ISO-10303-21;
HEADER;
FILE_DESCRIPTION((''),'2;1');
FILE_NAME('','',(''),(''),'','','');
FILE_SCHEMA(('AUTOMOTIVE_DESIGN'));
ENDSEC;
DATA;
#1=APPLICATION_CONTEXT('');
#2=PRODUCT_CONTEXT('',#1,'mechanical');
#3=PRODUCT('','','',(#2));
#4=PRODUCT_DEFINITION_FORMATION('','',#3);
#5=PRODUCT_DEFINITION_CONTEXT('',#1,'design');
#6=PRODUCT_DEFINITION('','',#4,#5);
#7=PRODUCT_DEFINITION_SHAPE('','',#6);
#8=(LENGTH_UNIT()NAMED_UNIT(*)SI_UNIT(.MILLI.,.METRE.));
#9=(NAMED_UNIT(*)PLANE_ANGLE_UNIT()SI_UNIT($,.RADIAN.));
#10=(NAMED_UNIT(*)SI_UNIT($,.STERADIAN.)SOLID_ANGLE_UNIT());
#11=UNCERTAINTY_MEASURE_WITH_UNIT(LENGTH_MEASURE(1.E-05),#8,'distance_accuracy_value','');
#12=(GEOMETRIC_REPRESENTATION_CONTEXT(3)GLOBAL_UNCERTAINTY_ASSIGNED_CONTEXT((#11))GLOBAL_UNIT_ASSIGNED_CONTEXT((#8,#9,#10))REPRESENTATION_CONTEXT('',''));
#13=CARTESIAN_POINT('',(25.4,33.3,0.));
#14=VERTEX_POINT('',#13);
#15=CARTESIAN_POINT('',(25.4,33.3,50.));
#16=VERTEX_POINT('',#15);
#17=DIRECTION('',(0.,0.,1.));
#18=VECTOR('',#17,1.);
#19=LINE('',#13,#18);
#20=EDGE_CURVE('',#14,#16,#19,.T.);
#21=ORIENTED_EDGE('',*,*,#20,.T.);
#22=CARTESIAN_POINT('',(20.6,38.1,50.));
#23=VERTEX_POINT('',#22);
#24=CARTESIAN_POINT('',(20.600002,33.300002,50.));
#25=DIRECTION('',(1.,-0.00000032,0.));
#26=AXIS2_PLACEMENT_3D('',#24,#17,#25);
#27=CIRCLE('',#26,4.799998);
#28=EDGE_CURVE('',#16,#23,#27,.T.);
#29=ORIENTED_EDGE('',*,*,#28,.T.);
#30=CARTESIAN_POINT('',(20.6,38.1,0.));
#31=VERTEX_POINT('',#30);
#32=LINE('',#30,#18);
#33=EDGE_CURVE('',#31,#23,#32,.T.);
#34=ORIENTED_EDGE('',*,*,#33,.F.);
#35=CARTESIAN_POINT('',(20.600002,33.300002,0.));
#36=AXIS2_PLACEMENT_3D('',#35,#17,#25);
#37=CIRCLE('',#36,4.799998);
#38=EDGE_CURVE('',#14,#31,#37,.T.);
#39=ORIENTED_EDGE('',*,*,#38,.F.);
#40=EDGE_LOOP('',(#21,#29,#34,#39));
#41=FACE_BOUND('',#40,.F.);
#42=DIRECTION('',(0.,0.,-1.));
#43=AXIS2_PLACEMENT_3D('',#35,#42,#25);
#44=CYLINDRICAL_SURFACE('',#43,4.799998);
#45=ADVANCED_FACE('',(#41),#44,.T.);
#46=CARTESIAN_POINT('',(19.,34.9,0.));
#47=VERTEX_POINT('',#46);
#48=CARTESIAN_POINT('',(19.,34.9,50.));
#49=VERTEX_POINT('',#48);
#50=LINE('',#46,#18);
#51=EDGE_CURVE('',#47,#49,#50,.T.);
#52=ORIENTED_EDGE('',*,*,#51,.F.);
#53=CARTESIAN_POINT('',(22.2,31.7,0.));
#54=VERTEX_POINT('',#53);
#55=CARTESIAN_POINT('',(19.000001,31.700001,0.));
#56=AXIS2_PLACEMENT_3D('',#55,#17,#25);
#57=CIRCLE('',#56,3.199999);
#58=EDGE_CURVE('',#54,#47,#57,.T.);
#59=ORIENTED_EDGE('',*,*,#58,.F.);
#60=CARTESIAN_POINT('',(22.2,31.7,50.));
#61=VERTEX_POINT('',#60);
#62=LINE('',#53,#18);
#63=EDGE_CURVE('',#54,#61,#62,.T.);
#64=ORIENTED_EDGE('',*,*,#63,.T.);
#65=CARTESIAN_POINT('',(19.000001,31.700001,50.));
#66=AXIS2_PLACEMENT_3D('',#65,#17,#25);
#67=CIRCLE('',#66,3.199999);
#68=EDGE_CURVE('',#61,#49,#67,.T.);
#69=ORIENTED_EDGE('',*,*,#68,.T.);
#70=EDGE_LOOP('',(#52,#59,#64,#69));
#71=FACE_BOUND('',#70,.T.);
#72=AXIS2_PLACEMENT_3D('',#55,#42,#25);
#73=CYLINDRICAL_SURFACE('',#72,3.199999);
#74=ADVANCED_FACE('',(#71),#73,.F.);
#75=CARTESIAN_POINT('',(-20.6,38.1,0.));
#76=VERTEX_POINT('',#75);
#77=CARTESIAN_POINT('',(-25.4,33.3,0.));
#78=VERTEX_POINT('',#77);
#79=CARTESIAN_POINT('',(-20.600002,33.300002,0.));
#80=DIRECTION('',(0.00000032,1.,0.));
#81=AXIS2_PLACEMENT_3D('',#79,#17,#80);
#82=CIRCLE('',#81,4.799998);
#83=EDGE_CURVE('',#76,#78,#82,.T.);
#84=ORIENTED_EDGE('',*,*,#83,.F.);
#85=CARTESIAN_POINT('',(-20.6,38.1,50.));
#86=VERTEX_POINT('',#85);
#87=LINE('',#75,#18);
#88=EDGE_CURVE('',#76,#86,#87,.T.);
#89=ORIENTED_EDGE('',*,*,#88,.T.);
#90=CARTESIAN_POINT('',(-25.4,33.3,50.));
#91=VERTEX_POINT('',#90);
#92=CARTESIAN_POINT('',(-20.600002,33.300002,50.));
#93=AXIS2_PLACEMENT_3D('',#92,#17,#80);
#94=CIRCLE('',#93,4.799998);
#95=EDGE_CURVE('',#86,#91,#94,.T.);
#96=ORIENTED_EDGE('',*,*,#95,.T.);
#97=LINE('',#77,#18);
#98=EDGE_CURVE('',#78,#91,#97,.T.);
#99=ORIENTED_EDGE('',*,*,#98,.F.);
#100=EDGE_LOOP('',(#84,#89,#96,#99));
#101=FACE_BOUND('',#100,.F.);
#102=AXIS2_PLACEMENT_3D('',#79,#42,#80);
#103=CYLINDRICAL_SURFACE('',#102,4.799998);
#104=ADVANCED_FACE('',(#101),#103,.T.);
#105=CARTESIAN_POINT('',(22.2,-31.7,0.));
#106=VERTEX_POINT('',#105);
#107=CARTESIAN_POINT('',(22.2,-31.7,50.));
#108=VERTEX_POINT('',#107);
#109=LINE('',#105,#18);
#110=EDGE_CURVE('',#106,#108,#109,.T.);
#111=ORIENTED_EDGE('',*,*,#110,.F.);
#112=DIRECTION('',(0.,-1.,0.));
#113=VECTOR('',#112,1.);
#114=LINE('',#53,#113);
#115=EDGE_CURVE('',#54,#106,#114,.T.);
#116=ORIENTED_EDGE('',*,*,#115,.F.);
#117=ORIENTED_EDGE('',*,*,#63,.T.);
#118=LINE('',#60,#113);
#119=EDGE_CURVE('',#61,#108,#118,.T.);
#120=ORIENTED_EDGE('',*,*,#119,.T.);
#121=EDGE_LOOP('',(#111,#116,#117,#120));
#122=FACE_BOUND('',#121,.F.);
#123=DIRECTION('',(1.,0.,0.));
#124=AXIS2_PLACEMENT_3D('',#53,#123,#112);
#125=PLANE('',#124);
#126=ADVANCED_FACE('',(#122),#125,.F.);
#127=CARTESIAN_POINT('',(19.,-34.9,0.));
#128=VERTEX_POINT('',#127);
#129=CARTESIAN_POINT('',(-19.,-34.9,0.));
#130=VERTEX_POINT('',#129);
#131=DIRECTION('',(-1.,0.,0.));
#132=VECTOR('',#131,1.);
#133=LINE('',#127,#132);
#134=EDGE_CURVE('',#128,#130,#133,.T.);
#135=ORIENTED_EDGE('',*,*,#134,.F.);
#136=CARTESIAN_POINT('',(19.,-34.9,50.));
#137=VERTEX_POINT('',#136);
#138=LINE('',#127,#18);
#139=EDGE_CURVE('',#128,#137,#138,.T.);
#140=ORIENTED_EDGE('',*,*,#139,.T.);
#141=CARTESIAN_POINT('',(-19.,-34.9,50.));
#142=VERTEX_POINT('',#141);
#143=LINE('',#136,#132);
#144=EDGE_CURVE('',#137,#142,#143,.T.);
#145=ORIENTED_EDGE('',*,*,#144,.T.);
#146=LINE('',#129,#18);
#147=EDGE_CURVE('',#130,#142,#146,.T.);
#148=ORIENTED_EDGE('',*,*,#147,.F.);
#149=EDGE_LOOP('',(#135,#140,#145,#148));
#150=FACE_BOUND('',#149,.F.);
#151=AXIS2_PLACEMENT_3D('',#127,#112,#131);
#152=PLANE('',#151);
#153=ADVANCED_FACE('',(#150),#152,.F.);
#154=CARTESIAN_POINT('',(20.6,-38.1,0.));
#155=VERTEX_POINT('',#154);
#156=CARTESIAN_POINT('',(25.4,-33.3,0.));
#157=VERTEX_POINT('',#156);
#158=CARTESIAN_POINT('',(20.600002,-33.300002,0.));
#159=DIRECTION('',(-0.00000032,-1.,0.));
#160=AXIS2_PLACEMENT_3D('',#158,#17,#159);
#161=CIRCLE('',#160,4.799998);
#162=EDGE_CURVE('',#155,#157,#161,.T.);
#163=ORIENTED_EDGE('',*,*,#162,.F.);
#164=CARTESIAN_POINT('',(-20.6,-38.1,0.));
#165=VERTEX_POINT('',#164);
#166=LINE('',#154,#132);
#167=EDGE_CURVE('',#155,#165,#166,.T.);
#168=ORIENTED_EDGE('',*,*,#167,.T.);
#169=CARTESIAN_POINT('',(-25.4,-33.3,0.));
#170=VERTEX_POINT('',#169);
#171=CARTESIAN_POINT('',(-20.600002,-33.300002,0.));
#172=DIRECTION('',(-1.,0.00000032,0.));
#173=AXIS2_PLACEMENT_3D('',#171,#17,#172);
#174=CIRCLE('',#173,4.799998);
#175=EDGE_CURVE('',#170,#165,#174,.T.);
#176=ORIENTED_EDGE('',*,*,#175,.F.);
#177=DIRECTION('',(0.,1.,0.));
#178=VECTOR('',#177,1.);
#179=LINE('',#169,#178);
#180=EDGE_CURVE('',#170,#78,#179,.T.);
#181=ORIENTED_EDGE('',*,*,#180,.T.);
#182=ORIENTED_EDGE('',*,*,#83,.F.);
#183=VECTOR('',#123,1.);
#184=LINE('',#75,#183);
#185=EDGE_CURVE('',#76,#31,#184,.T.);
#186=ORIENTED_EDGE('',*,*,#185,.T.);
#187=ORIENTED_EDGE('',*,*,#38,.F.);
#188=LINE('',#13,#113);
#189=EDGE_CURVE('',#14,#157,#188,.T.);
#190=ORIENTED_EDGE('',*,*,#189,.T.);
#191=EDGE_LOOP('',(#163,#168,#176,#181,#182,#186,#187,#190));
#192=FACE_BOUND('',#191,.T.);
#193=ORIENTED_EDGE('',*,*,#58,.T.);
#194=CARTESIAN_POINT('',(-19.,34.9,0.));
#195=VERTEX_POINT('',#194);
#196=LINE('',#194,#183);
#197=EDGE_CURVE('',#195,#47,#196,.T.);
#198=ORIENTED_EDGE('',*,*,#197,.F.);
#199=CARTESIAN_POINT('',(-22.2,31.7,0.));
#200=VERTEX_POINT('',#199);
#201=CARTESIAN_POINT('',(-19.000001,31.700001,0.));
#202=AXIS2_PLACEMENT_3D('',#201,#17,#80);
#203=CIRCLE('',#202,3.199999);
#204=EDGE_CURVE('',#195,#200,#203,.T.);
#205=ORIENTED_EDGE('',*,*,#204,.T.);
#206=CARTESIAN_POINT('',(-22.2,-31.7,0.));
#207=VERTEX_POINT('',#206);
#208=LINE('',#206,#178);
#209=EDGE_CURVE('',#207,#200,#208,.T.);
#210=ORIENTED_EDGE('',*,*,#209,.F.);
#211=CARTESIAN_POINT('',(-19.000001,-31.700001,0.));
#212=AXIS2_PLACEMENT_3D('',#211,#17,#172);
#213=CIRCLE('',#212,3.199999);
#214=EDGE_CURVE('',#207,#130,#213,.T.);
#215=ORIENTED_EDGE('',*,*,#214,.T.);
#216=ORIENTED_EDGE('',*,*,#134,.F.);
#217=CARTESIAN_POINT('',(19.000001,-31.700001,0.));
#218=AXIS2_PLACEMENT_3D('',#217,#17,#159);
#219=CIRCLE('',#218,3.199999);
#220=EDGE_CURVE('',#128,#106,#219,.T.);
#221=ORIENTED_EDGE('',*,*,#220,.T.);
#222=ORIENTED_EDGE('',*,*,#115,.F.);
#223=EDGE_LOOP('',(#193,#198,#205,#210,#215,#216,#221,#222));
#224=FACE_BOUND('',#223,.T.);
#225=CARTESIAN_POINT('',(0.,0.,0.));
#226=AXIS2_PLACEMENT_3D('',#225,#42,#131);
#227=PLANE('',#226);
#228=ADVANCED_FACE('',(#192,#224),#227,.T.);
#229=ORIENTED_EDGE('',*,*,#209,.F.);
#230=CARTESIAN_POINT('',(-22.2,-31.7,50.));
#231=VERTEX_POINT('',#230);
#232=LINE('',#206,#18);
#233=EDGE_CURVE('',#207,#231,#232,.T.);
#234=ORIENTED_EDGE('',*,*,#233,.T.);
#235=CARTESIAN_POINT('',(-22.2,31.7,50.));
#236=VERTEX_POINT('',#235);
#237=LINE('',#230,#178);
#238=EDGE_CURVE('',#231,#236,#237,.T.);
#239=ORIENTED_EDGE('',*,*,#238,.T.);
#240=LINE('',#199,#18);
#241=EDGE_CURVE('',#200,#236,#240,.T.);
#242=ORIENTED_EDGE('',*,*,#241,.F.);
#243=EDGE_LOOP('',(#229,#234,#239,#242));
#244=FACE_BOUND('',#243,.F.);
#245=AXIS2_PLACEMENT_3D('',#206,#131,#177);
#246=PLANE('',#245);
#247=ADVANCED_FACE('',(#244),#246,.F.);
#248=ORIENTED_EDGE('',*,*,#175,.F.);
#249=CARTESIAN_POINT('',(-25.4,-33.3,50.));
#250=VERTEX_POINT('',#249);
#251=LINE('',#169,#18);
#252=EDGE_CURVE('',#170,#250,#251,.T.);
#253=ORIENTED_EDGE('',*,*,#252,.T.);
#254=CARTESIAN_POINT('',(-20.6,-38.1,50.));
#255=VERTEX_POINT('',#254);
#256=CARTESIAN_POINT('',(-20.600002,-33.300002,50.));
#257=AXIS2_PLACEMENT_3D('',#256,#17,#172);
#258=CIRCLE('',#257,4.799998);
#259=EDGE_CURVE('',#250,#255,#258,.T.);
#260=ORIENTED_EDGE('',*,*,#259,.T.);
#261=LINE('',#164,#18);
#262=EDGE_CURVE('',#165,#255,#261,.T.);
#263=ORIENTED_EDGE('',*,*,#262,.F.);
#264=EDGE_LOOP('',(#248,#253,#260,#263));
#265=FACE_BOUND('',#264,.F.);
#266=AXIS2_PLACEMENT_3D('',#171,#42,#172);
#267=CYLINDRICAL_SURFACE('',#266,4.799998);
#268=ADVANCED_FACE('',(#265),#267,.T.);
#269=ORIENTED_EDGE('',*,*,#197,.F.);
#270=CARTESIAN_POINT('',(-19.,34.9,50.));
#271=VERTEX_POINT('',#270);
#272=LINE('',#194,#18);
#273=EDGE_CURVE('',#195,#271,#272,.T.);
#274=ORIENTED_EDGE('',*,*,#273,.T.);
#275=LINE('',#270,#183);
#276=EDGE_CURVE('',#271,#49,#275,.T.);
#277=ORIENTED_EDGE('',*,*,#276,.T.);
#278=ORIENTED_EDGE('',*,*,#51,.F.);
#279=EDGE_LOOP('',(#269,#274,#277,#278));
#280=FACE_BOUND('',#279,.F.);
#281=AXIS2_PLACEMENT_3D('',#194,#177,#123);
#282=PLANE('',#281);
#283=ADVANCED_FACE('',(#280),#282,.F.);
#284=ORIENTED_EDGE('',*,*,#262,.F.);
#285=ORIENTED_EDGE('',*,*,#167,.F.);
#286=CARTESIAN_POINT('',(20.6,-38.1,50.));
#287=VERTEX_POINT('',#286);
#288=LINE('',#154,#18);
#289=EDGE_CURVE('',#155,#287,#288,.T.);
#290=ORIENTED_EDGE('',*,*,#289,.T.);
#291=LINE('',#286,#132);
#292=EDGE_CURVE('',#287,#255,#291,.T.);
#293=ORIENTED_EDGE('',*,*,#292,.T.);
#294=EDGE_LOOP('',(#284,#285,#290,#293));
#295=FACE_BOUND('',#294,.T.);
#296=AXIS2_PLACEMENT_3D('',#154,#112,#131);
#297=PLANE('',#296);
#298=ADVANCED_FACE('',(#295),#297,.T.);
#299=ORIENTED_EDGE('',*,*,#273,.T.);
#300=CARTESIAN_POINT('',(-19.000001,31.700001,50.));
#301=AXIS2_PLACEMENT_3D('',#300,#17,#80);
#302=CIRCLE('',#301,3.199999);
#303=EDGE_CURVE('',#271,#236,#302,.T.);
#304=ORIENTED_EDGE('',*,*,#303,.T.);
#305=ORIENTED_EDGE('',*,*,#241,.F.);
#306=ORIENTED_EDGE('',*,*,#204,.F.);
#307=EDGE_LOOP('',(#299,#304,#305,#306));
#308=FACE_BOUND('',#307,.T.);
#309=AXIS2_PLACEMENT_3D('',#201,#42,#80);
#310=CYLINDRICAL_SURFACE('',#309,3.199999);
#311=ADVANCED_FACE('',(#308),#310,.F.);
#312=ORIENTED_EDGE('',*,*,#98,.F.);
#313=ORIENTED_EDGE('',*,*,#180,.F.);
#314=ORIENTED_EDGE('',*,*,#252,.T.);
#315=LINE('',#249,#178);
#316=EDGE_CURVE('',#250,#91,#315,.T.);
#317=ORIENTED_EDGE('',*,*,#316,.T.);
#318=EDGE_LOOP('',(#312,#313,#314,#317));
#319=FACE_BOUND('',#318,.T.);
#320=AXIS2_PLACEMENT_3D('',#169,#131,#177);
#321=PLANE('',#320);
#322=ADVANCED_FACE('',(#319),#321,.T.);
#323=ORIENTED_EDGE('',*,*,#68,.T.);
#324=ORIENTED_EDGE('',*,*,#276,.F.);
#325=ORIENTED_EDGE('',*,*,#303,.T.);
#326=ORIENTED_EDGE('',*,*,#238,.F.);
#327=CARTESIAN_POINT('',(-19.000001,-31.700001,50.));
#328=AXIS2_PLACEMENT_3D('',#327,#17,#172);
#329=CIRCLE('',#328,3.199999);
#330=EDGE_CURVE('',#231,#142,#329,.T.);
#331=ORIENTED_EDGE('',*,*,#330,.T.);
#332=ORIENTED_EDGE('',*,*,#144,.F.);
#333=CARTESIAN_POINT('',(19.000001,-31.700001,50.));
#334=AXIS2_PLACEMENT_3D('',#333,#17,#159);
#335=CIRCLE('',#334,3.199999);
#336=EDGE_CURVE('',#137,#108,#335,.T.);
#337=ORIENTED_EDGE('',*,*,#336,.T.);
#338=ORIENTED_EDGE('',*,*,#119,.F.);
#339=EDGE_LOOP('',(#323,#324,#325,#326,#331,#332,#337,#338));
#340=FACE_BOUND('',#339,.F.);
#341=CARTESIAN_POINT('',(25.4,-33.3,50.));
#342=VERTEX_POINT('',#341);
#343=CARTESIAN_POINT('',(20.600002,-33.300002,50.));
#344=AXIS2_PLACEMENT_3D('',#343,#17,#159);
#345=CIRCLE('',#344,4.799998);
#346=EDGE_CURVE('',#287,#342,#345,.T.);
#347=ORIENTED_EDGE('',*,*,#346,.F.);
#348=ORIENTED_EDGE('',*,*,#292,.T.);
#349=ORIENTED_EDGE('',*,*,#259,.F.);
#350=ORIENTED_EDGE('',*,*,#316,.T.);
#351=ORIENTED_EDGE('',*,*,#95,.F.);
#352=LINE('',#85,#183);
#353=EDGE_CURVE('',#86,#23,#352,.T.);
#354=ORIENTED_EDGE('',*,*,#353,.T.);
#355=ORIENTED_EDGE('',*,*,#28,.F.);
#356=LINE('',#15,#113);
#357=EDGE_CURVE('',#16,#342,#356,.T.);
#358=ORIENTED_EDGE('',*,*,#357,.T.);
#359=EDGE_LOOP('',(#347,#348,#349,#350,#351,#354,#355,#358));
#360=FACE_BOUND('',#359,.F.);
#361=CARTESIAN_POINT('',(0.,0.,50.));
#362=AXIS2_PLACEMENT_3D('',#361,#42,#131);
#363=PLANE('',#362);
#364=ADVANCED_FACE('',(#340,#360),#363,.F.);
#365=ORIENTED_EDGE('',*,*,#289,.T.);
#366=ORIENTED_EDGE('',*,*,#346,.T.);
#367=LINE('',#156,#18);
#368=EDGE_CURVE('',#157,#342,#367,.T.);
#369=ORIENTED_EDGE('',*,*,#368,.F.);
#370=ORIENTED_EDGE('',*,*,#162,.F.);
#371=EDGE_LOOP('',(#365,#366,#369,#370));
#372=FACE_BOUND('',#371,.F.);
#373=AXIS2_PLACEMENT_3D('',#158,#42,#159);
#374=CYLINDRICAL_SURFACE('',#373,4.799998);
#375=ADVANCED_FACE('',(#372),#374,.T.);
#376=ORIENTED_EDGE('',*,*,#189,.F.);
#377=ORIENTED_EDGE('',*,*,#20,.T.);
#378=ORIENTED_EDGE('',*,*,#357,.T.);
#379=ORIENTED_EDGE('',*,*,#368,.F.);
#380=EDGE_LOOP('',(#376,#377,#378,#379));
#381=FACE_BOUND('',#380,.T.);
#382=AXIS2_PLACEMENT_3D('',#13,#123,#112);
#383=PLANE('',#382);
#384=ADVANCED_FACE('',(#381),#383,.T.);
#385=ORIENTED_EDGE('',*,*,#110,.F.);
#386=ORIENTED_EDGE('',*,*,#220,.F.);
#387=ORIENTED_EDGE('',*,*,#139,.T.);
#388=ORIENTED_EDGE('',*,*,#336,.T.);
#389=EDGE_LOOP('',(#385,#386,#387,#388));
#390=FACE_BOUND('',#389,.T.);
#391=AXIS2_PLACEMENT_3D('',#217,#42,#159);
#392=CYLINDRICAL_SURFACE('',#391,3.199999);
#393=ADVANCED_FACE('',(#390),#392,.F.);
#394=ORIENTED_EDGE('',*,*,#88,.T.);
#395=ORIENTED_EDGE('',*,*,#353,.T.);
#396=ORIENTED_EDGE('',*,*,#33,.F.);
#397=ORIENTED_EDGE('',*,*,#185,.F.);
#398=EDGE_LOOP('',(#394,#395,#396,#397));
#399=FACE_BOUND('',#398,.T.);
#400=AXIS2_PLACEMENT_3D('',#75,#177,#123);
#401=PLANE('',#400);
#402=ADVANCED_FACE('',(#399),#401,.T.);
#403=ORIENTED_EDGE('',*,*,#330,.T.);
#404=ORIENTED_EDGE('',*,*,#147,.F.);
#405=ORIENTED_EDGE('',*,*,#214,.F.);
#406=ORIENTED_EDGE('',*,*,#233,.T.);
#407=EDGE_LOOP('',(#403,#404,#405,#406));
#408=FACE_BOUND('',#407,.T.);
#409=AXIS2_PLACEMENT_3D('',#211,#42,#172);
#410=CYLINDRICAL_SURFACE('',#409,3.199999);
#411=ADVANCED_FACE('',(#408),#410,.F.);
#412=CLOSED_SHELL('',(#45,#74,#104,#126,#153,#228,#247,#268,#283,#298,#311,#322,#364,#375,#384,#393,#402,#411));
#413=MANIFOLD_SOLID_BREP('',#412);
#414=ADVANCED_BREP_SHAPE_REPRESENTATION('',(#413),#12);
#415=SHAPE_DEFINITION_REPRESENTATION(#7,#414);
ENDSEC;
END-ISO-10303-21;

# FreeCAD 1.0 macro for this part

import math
import FreeCAD as App
import Part
import Sketcher

V = App.Vector

doc = App.newDocument("Part")
body = doc.addObject("PartDesign::Body", "Body")

# Sketch on XY plane
sketch1 = body.newObject("Sketcher::SketchObject", "Sketch")
sketch1.AttachmentSupport = (doc.getObject("XY_Plane"), [""])
sketch1.MapMode = "FlatFace"
sketch1.addGeometry(Part.LineSegment(V(20.6, 38.1, 0), V(-20.6, 38.1, 0)), False)
sketch1.addGeometry(Part.ArcOfCircle(Part.Circle(V(-20.6, 33.3, 0), V(0, 0, 1), 4.8), math.radians(90), math.radians(180)), False)
sketch1.addGeometry(Part.LineSegment(V(-25.4, 33.3, 0), V(-25.4, -33.3, 0)), False)
sketch1.addGeometry(Part.ArcOfCircle(Part.Circle(V(-20.6, -33.3, 0), V(0, 0, 1), 4.8), math.radians(180), math.radians(270)), False)
sketch1.addGeometry(Part.LineSegment(V(-20.6, -38.1, 0), V(20.6, -38.1, 0)), False)
sketch1.addGeometry(Part.ArcOfCircle(Part.Circle(V(20.6, -33.3, 0), V(0, 0, 1), 4.8), math.radians(-90), math.radians(0)), False)
sketch1.addGeometry(Part.LineSegment(V(25.4, -33.3, 0), V(25.4, 33.3, 0)), False)
sketch1.addGeometry(Part.ArcOfCircle(Part.Circle(V(20.6, 33.3, 0), V(0, 0, 1), 4.8), math.radians(0), math.radians(90)), False)
sketch1.addGeometry(Part.LineSegment(V(-19, 34.9, 0), V(19, 34.9, 0)), False)
sketch1.addGeometry(Part.ArcOfCircle(Part.Circle(V(19, 31.7, 0), V(0, 0, 1), 3.2), math.radians(0), math.radians(90)), False)
sketch1.addGeometry(Part.LineSegment(V(22.2, 31.7, 0), V(22.2, -31.7, 0)), False)
sketch1.addGeometry(Part.ArcOfCircle(Part.Circle(V(19, -31.7, 0), V(0, 0, 1), 3.2), math.radians(-90), math.radians(0)), False)
sketch1.addGeometry(Part.LineSegment(V(19, -34.9, 0), V(-19, -34.9, 0)), False)
sketch1.addGeometry(Part.ArcOfCircle(Part.Circle(V(-19, -31.7, 0), V(0, 0, 1), 3.2), math.radians(180), math.radians(270)), False)
sketch1.addGeometry(Part.LineSegment(V(-22.2, -31.7, 0), V(-22.2, 31.7, 0)), False)
sketch1.addGeometry(Part.ArcOfCircle(Part.Circle(V(-19, 31.7, 0), V(0, 0, 1), 3.2), math.radians(90), math.radians(180)), False)
sketch1.addConstraint(Sketcher.Constraint("Tangent", 0, 2, 1, 1))
sketch1.addConstraint(Sketcher.Constraint("Tangent", 1, 2, 2, 1))
sketch1.addConstraint(Sketcher.Constraint("Tangent", 2, 2, 3, 1))
sketch1.addConstraint(Sketcher.Constraint("Tangent", 3, 2, 4, 1))
sketch1.addConstraint(Sketcher.Constraint("Tangent", 4, 2, 5, 1))
sketch1.addConstraint(Sketcher.Constraint("Tangent", 5, 2, 6, 1))
sketch1.addConstraint(Sketcher.Constraint("Tangent", 6, 2, 7, 1))
sketch1.addConstraint(Sketcher.Constraint("Tangent", 7, 2, 0, 1))
sketch1.addConstraint(Sketcher.Constraint("Tangent", 8, 2, 9, 2))
sketch1.addConstraint(Sketcher.Constraint("Tangent", 9, 1, 10, 1))
sketch1.addConstraint(Sketcher.Constraint("Tangent", 10, 2, 11, 2))
sketch1.addConstraint(Sketcher.Constraint("Tangent", 11, 1, 12, 1))
sketch1.addConstraint(Sketcher.Constraint("Tangent", 12, 2, 13, 2))
sketch1.addConstraint(Sketcher.Constraint("Tangent", 13, 1, 14, 1))
sketch1.addConstraint(Sketcher.Constraint("Tangent", 14, 2, 15, 2))
sketch1.addConstraint(Sketcher.Constraint("Tangent", 15, 1, 8, 1))
sketch1.addConstraint(Sketcher.Constraint("Horizontal", 0))
sketch1.addConstraint(Sketcher.Constraint("Vertical", 2))
sketch1.addConstraint(Sketcher.Constraint("Horizontal", 4))
sketch1.addConstraint(Sketcher.Constraint("Vertical", 6))
sketch1.addConstraint(Sketcher.Constraint("Horizontal", 8))
sketch1.addConstraint(Sketcher.Constraint("Vertical", 10))
sketch1.addConstraint(Sketcher.Constraint("Horizontal", 12))
sketch1.addConstraint(Sketcher.Constraint("Vertical", 14))
sketch1.addConstraint(Sketcher.Constraint("Equal", 1, 3))
sketch1.addConstraint(Sketcher.Constraint("Equal", 3, 5))
sketch1.addConstraint(Sketcher.Constraint("Equal", 5, 7))
sketch1.addConstraint(Sketcher.Constraint("Equal", 9, 11))
sketch1.addConstraint(Sketcher.Constraint("Equal", 11, 13))
sketch1.addConstraint(Sketcher.Constraint("Equal", 13, 15))
sketch1.addConstraint(Sketcher.Constraint("Symmetric", 1, 3, 5, 3, -1, 1))
sketch1.addConstraint(Sketcher.Constraint("Symmetric", 9, 3, 13, 3, -1, 1))
sketch1.addConstraint(Sketcher.Constraint("Radius", 1, 4.799998))
sketch1.addConstraint(Sketcher.Constraint("Radius", 9, 3.199999))
sketch1.addConstraint(Sketcher.Constraint("DistanceX", 8, 1, 8, 2, 38.0))
sketch1.addConstraint(Sketcher.Constraint("DistanceX", 0, 2, 0, 1, 41.2))
sketch1.addConstraint(Sketcher.Constraint("DistanceY", 2, 2, 2, 1, 66.6))
sketch1.addConstraint(Sketcher.Constraint("DistanceY", 10, 2, 10, 1, 63.4))
pad1 = body.newObject("PartDesign::Pad", "Pad")
pad1.Profile = sketch1
pad1.Length = 50

doc.recompute()
